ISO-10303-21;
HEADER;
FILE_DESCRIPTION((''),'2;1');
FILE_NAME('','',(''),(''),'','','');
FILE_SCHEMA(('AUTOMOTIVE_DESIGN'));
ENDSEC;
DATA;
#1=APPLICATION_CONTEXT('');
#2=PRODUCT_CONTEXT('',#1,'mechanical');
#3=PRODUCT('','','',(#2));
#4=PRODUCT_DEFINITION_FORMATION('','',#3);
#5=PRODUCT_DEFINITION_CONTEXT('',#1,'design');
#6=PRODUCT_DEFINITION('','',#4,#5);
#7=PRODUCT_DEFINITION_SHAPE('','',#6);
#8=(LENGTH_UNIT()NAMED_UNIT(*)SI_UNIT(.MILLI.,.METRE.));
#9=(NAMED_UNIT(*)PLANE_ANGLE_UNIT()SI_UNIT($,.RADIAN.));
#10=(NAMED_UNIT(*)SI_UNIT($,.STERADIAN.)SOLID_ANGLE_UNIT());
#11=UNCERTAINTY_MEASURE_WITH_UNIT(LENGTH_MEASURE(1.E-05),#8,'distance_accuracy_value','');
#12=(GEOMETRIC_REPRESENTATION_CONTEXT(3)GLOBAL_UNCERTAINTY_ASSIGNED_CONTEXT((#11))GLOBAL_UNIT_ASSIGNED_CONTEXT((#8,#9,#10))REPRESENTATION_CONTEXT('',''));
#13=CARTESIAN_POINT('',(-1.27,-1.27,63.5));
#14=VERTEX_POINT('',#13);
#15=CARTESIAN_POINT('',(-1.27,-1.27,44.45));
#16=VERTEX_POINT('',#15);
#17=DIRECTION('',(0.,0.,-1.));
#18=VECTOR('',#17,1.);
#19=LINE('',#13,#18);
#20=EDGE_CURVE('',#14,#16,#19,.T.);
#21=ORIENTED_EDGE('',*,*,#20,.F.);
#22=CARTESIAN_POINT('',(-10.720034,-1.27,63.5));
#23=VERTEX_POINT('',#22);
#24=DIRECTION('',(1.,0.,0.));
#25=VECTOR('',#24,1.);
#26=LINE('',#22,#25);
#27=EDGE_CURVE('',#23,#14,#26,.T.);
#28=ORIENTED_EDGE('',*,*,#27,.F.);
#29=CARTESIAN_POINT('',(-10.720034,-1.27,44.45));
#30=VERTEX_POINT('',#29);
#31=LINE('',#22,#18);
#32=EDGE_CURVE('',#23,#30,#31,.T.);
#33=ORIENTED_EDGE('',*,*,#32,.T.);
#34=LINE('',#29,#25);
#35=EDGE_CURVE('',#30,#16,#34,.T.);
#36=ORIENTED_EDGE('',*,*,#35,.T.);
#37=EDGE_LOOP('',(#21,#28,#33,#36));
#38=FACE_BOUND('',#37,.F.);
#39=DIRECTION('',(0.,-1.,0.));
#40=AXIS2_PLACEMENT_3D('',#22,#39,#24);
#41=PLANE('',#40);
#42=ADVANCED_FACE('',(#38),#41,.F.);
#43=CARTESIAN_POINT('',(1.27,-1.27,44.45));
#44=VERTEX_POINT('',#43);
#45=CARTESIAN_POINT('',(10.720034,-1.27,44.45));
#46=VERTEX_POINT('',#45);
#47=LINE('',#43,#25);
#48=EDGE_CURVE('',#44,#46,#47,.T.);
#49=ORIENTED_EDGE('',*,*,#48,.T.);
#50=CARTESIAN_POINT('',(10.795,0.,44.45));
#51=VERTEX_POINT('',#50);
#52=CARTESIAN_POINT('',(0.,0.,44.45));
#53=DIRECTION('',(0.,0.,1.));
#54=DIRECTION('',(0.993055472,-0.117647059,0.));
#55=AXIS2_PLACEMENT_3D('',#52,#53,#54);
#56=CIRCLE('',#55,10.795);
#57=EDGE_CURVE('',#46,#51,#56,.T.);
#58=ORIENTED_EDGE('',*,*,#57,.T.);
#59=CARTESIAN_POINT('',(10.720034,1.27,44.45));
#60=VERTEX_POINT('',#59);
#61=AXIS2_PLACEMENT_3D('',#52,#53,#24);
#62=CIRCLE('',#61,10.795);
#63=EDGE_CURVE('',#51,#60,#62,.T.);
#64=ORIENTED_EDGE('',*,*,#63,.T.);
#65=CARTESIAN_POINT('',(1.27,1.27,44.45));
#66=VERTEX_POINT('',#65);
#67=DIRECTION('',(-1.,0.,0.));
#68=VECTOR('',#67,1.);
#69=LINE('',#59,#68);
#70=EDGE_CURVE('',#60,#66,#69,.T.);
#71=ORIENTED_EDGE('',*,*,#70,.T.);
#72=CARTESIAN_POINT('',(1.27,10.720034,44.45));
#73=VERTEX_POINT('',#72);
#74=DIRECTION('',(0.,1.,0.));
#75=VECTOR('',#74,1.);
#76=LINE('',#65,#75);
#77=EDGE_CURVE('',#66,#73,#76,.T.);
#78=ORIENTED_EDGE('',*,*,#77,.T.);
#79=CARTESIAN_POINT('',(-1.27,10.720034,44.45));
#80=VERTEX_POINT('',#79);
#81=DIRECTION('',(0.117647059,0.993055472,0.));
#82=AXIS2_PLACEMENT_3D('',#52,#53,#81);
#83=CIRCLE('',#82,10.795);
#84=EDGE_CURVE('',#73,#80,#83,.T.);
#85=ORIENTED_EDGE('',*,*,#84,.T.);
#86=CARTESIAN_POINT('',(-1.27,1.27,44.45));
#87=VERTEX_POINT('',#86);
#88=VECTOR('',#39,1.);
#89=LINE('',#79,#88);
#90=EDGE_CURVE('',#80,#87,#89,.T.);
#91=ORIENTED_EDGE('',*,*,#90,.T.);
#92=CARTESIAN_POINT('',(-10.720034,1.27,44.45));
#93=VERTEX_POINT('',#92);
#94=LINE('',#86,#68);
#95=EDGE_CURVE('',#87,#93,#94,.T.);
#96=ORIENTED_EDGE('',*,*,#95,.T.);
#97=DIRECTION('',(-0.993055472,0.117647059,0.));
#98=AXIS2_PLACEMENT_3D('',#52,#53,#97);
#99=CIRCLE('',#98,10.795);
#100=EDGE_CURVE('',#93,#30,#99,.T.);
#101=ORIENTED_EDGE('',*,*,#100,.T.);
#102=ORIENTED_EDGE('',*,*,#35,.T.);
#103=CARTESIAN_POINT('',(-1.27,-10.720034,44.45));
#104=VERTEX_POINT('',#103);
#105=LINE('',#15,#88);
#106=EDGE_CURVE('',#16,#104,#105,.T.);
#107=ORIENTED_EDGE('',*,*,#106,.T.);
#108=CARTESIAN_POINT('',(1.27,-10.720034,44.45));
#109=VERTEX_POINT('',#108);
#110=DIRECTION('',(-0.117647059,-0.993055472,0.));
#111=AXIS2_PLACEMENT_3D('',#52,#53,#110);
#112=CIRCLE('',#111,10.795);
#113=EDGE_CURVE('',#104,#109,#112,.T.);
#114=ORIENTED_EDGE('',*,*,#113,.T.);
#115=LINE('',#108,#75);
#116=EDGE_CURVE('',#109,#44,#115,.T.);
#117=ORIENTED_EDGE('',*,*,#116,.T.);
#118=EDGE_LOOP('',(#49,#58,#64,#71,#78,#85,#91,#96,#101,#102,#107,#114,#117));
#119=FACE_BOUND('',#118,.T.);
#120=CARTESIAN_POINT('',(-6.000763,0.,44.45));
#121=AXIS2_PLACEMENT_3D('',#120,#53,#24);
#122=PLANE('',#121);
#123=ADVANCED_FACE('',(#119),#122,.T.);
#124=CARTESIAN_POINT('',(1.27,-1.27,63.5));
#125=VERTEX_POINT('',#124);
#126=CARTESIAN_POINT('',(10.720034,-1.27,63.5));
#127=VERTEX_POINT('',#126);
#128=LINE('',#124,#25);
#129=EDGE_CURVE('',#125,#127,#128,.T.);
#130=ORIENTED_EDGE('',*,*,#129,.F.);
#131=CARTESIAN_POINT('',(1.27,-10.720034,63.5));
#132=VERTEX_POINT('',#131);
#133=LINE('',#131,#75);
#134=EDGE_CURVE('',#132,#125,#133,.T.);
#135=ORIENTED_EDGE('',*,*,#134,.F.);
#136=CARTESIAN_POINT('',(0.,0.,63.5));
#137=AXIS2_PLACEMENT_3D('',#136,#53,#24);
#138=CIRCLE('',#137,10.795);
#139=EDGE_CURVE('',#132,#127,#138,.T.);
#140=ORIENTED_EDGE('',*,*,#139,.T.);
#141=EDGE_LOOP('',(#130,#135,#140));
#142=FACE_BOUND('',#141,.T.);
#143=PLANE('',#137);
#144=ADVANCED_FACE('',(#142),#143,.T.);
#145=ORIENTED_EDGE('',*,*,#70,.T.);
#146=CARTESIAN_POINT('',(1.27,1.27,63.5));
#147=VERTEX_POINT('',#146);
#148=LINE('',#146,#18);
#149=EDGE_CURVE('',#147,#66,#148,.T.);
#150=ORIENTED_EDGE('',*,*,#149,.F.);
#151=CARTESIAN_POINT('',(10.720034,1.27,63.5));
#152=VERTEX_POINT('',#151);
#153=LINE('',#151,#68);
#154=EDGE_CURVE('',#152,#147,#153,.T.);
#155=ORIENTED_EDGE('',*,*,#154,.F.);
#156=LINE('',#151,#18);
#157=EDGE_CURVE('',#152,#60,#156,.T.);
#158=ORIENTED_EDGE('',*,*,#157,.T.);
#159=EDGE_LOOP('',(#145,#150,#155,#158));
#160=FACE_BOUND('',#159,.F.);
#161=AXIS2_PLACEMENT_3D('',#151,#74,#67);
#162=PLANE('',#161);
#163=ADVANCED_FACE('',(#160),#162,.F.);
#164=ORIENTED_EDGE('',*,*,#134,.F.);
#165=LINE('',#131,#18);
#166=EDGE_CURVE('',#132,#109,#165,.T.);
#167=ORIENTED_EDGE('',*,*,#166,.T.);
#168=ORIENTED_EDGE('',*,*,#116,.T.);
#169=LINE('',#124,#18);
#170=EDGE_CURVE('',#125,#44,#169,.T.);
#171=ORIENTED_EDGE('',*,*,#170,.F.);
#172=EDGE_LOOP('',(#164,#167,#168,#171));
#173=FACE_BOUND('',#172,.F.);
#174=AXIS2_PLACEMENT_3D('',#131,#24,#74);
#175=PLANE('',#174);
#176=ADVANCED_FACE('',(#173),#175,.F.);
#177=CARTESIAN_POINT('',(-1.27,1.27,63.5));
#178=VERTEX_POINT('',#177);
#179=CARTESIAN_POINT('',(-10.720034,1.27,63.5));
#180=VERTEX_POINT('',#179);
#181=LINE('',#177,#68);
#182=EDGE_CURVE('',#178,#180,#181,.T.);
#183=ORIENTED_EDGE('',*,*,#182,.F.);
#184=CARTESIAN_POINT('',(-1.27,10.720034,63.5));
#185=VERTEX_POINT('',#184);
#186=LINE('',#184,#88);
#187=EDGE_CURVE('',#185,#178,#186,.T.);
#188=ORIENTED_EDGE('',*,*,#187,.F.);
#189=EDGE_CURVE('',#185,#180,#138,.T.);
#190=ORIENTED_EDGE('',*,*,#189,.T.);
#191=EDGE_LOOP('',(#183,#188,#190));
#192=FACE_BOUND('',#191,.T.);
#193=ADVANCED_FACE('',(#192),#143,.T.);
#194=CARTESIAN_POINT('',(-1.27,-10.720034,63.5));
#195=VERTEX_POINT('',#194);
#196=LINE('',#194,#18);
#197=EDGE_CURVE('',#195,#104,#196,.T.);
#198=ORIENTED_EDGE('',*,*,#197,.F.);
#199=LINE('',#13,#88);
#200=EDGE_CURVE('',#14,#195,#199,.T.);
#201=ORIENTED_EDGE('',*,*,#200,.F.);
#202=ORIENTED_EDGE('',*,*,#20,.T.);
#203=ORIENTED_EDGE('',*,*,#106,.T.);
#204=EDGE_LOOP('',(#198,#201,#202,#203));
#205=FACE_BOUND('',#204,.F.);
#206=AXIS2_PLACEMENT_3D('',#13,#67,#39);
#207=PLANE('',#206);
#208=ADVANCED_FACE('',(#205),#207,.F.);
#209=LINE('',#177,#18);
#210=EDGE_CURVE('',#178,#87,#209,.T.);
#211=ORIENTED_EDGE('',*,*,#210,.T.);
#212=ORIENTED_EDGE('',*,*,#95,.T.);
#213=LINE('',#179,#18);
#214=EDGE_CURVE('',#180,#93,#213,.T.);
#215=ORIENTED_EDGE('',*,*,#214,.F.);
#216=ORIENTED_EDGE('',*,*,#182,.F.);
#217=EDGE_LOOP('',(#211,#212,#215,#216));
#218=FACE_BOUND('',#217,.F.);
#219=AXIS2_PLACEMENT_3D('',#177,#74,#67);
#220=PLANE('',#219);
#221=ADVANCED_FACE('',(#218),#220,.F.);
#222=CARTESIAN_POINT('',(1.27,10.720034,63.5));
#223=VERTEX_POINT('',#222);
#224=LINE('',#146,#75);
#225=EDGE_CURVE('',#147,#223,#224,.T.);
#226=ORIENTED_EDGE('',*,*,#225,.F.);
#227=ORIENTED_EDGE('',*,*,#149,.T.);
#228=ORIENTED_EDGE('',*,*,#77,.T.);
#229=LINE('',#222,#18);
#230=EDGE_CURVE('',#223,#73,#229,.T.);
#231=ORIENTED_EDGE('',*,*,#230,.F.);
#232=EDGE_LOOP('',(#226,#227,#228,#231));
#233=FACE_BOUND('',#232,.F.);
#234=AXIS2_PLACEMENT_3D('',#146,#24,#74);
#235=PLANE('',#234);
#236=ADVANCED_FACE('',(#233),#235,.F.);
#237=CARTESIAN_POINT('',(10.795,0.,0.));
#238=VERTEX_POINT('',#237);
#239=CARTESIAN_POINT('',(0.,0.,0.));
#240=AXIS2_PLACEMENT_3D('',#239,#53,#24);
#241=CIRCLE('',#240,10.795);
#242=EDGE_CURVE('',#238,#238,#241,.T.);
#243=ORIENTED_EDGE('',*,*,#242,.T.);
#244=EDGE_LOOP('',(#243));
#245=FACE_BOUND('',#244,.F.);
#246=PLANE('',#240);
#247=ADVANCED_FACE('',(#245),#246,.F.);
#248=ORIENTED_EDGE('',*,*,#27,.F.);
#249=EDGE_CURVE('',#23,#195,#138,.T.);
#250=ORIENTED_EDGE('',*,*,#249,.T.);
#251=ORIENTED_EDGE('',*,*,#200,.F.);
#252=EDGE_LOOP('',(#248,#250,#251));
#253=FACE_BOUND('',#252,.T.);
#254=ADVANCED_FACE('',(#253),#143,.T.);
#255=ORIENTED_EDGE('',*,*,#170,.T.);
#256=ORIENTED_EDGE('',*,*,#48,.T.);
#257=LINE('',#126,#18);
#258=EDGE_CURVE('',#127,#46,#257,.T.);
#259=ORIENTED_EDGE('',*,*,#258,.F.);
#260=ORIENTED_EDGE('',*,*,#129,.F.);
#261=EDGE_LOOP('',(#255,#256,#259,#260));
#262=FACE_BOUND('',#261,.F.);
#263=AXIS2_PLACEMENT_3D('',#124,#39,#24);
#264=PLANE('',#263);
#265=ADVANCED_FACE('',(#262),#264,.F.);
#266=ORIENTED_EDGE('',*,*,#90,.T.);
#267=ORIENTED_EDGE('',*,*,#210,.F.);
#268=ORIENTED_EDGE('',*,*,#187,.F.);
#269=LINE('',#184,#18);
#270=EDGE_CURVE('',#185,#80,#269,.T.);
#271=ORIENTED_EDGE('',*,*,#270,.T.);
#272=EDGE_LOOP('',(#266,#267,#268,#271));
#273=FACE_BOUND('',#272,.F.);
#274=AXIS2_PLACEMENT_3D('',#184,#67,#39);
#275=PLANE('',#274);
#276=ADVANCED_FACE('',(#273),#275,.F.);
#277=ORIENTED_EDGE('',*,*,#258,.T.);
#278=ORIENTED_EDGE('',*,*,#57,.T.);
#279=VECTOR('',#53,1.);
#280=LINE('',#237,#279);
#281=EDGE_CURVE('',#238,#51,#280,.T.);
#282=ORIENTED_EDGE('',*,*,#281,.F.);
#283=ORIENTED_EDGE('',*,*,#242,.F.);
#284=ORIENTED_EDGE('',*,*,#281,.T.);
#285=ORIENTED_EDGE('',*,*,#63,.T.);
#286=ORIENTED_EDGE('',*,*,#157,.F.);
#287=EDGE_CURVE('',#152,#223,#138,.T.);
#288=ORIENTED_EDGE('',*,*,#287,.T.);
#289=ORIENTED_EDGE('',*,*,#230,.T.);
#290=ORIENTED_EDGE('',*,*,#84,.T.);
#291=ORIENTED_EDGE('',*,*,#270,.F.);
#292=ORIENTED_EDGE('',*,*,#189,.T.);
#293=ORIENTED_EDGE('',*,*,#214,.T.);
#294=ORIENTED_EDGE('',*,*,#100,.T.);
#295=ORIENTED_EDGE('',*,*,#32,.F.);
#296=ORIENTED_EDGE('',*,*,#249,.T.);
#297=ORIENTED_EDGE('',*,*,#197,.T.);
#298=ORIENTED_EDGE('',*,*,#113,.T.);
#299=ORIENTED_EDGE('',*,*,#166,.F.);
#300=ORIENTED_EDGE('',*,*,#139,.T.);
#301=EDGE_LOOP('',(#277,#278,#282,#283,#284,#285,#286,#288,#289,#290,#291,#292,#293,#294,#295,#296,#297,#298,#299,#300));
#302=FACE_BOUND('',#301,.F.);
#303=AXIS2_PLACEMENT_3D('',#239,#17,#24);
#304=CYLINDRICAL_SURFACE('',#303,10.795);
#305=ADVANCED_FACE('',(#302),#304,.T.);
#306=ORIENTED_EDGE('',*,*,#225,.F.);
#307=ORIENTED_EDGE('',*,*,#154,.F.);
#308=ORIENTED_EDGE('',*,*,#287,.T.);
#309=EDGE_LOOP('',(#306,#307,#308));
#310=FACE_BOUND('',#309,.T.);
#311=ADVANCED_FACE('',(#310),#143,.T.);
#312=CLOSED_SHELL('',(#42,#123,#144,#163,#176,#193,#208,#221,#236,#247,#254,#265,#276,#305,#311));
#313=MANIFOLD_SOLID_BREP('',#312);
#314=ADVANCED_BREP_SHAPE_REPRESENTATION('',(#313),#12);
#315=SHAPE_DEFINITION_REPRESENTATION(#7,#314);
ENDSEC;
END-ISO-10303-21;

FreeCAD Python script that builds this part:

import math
import FreeCAD as App
import Part
import Sketcher
from FreeCAD import Vector
Q = App.Units.Quantity

doc = App.newDocument("Part")
body = doc.addObject("PartDesign::Body", "Body")

# Sketch on XY plane
sketch1 = body.newObject("Sketcher::SketchObject", "Sketch")
sketch1.AttachmentSupport = (doc.getObject("XY_Plane"), [""])
sketch1.MapMode = "FlatFace"
sketch1.addGeometry(Part.Circle(Vector(0, 0, 0), Vector(0, 0, 1), 11), False)
sketch1.addConstraint(Sketcher.Constraint("Coincident", 0, 3, -1, 1))
sketch1.addConstraint(Sketcher.Constraint("Diameter", 0, Q("0.85 in")))
pad1 = body.newObject("PartDesign::Pad", "Pad")
pad1.Profile = sketch1
pad1.Length = Q("2.5 in")

# Sketch on XY plane
sketch2 = body.newObject("Sketcher::SketchObject", "Sketch001")
sketch2.AttachmentSupport = (doc.getObject("XY_Plane"), [""])
sketch2.MapMode = "FlatFace"
sketch2.AttachmentOffset = App.Placement(Vector(0, 0, 2.5 * 25.4), App.Rotation())
sketch2.addGeometry(Part.LineSegment(Vector(-1.3, 1.3, 0), Vector(-10.7, 1.3, 0)), False)
sketch2.addGeometry(Part.ArcOfCircle(Part.Circle(Vector(0, 0, 0), Vector(0, 0, 1), 10.8), math.radians(173.24), math.radians(186.76)), False)
sketch2.addGeometry(Part.LineSegment(Vector(-10.7, -1.3, 0), Vector(-1.3, -1.3, 0)), False)
sketch2.addGeometry(Part.LineSegment(Vector(-1.3, -1.3, 0), Vector(-1.3, -10.7, 0)), False)
sketch2.addGeometry(Part.ArcOfCircle(Part.Circle(Vector(0, 0, 0), Vector(0, 0, 1), 10.8), math.radians(-96.76), math.radians(-83.24)), False)
sketch2.addGeometry(Part.LineSegment(Vector(1.3, -10.7, 0), Vector(1.3, -1.3, 0)), False)
sketch2.addGeometry(Part.LineSegment(Vector(1.3, -1.3, 0), Vector(10.7, -1.3, 0)), False)
sketch2.addGeometry(Part.ArcOfCircle(Part.Circle(Vector(0, 0, 0), Vector(0, 0, 1), 10.8), math.radians(-6.76), math.radians(0)), False)
sketch2.addGeometry(Part.ArcOfCircle(Part.Circle(Vector(0, 0, 0), Vector(0, 0, 1), 10.8), math.radians(0), math.radians(6.76)), False)
sketch2.addGeometry(Part.LineSegment(Vector(10.7, 1.3, 0), Vector(1.3, 1.3, 0)), False)
sketch2.addGeometry(Part.LineSegment(Vector(1.3, 1.3, 0), Vector(1.3, 10.7, 0)), False)
sketch2.addGeometry(Part.ArcOfCircle(Part.Circle(Vector(0, 0, 0), Vector(0, 0, 1), 10.8), math.radians(83.24), math.radians(96.76)), False)
sketch2.addGeometry(Part.LineSegment(Vector(-1.3, 10.7, 0), Vector(-1.3, 1.3, 0)), False)
sketch2.addConstraint(Sketcher.Constraint("Coincident", 0, 2, 1, 1))
sketch2.addConstraint(Sketcher.Constraint("Coincident", 1, 2, 2, 1))
sketch2.addConstraint(Sketcher.Constraint("Coincident", 2, 2, 3, 1))
sketch2.addConstraint(Sketcher.Constraint("Coincident", 3, 2, 4, 1))
sketch2.addConstraint(Sketcher.Constraint("Coincident", 4, 2, 5, 1))
sketch2.addConstraint(Sketcher.Constraint("Coincident", 5, 2, 6, 1))
sketch2.addConstraint(Sketcher.Constraint("Coincident", 6, 2, 7, 1))
sketch2.addConstraint(Sketcher.Constraint("Tangent", 7, 2, 8, 1))
sketch2.addConstraint(Sketcher.Constraint("Coincident", 8, 2, 9, 1))
sketch2.addConstraint(Sketcher.Constraint("Coincident", 9, 2, 10, 1))
sketch2.addConstraint(Sketcher.Constraint("Coincident", 10, 2, 11, 1))
sketch2.addConstraint(Sketcher.Constraint("Coincident", 11, 2, 12, 1))
sketch2.addConstraint(Sketcher.Constraint("Coincident", 12, 2, 0, 1))
sketch2.addConstraint(Sketcher.Constraint("Horizontal", 0))
sketch2.addConstraint(Sketcher.Constraint("Horizontal", 2))
sketch2.addConstraint(Sketcher.Constraint("Vertical", 3))
sketch2.addConstraint(Sketcher.Constraint("Vertical", 5))
sketch2.addConstraint(Sketcher.Constraint("Horizontal", 6))
sketch2.addConstraint(Sketcher.Constraint("Horizontal", 9))
sketch2.addConstraint(Sketcher.Constraint("Vertical", 10))
sketch2.addConstraint(Sketcher.Constraint("Vertical", 12))
sketch2.addConstraint(Sketcher.Constraint("Coincident", 1, 3, -1, 1))
sketch2.addConstraint(Sketcher.Constraint("Coincident", 4, 3, -1, 1))
sketch2.addConstraint(Sketcher.Constraint("Coincident", 7, 3, -1, 1))
sketch2.addConstraint(Sketcher.Constraint("Coincident", 11, 3, -1, 1))
sketch2.addConstraint(Sketcher.Constraint("Equal", 1, 4))
sketch2.addConstraint(Sketcher.Constraint("Equal", 4, 7))
sketch2.addConstraint(Sketcher.Constraint("Equal", 7, 8))
sketch2.addConstraint(Sketcher.Constraint("Equal", 8, 11))
sketch2.addConstraint(Sketcher.Constraint("Symmetric", 2, 2, 9, 2, -1, 1))
sketch2.addConstraint(Sketcher.Constraint("Symmetric", 5, 2, 12, 2, -1, 1))
sketch2.addConstraint(Sketcher.Constraint("Symmetric", 2, 2, 5, 2, -2))
sketch2.addConstraint(Sketcher.Constraint("PointOnObject", 7, 2, -1))
sketch2.addConstraint(Sketcher.Constraint("Equal", 9, 3))
sketch2.addConstraint(Sketcher.Constraint("Radius", 1, Q("0.425 in")))
sketch2.addConstraint(Sketcher.Constraint("DistanceY", 1, 2, 0, 2, Q("0.1 in")))
pocket1 = body.newObject("PartDesign::Pocket", "Pocket")
pocket1.Profile = sketch2
pocket1.Length = Q("0.75 in")

doc.recompute()
